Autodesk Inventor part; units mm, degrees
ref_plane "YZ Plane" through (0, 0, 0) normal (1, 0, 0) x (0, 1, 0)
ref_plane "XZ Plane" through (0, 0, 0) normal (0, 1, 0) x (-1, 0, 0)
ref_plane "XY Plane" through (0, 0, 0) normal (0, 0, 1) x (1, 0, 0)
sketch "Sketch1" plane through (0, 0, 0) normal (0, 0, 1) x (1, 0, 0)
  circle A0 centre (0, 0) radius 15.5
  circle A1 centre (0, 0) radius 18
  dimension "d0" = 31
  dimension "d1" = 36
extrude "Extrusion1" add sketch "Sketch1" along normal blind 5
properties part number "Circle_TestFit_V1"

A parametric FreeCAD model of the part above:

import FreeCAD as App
import Part
import Sketcher
Q = App.Units.Quantity

doc = App.newDocument("Part")
body = doc.addObject("PartDesign::Body", "Body")

# Sketch on XY plane
sketch1 = doc.addObject("Sketcher::SketchObject", "Sketch")
body.addObject(sketch1)
sketch1.AttachmentSupport = (doc.XY_Plane, [""])
sketch1.MapMode = "FlatFace"
sketch1.addGeometry(Part.Circle(App.Vector(0, 0, 0), App.Vector(0, 0, 1), 18), False)
sketch1.addGeometry(Part.Circle(App.Vector(0, 0, 0), App.Vector(0, 0, 1), 16), False)
sketch1.addConstraint(Sketcher.Constraint("Coincident", 0, 3, -1, 1))
sketch1.addConstraint(Sketcher.Constraint("Coincident", 1, 3, -1, 1))
sketch1.addConstraint(Sketcher.Constraint("Diameter", 0, Q("36 mm")))
sketch1.addConstraint(Sketcher.Constraint("Diameter", 1, Q("31 mm")))
pad1 = doc.addObject("PartDesign::Pad", "Pad")
body.addObject(pad1)
pad1.Profile = sketch1
pad1.Length = 5

doc.recompute()
